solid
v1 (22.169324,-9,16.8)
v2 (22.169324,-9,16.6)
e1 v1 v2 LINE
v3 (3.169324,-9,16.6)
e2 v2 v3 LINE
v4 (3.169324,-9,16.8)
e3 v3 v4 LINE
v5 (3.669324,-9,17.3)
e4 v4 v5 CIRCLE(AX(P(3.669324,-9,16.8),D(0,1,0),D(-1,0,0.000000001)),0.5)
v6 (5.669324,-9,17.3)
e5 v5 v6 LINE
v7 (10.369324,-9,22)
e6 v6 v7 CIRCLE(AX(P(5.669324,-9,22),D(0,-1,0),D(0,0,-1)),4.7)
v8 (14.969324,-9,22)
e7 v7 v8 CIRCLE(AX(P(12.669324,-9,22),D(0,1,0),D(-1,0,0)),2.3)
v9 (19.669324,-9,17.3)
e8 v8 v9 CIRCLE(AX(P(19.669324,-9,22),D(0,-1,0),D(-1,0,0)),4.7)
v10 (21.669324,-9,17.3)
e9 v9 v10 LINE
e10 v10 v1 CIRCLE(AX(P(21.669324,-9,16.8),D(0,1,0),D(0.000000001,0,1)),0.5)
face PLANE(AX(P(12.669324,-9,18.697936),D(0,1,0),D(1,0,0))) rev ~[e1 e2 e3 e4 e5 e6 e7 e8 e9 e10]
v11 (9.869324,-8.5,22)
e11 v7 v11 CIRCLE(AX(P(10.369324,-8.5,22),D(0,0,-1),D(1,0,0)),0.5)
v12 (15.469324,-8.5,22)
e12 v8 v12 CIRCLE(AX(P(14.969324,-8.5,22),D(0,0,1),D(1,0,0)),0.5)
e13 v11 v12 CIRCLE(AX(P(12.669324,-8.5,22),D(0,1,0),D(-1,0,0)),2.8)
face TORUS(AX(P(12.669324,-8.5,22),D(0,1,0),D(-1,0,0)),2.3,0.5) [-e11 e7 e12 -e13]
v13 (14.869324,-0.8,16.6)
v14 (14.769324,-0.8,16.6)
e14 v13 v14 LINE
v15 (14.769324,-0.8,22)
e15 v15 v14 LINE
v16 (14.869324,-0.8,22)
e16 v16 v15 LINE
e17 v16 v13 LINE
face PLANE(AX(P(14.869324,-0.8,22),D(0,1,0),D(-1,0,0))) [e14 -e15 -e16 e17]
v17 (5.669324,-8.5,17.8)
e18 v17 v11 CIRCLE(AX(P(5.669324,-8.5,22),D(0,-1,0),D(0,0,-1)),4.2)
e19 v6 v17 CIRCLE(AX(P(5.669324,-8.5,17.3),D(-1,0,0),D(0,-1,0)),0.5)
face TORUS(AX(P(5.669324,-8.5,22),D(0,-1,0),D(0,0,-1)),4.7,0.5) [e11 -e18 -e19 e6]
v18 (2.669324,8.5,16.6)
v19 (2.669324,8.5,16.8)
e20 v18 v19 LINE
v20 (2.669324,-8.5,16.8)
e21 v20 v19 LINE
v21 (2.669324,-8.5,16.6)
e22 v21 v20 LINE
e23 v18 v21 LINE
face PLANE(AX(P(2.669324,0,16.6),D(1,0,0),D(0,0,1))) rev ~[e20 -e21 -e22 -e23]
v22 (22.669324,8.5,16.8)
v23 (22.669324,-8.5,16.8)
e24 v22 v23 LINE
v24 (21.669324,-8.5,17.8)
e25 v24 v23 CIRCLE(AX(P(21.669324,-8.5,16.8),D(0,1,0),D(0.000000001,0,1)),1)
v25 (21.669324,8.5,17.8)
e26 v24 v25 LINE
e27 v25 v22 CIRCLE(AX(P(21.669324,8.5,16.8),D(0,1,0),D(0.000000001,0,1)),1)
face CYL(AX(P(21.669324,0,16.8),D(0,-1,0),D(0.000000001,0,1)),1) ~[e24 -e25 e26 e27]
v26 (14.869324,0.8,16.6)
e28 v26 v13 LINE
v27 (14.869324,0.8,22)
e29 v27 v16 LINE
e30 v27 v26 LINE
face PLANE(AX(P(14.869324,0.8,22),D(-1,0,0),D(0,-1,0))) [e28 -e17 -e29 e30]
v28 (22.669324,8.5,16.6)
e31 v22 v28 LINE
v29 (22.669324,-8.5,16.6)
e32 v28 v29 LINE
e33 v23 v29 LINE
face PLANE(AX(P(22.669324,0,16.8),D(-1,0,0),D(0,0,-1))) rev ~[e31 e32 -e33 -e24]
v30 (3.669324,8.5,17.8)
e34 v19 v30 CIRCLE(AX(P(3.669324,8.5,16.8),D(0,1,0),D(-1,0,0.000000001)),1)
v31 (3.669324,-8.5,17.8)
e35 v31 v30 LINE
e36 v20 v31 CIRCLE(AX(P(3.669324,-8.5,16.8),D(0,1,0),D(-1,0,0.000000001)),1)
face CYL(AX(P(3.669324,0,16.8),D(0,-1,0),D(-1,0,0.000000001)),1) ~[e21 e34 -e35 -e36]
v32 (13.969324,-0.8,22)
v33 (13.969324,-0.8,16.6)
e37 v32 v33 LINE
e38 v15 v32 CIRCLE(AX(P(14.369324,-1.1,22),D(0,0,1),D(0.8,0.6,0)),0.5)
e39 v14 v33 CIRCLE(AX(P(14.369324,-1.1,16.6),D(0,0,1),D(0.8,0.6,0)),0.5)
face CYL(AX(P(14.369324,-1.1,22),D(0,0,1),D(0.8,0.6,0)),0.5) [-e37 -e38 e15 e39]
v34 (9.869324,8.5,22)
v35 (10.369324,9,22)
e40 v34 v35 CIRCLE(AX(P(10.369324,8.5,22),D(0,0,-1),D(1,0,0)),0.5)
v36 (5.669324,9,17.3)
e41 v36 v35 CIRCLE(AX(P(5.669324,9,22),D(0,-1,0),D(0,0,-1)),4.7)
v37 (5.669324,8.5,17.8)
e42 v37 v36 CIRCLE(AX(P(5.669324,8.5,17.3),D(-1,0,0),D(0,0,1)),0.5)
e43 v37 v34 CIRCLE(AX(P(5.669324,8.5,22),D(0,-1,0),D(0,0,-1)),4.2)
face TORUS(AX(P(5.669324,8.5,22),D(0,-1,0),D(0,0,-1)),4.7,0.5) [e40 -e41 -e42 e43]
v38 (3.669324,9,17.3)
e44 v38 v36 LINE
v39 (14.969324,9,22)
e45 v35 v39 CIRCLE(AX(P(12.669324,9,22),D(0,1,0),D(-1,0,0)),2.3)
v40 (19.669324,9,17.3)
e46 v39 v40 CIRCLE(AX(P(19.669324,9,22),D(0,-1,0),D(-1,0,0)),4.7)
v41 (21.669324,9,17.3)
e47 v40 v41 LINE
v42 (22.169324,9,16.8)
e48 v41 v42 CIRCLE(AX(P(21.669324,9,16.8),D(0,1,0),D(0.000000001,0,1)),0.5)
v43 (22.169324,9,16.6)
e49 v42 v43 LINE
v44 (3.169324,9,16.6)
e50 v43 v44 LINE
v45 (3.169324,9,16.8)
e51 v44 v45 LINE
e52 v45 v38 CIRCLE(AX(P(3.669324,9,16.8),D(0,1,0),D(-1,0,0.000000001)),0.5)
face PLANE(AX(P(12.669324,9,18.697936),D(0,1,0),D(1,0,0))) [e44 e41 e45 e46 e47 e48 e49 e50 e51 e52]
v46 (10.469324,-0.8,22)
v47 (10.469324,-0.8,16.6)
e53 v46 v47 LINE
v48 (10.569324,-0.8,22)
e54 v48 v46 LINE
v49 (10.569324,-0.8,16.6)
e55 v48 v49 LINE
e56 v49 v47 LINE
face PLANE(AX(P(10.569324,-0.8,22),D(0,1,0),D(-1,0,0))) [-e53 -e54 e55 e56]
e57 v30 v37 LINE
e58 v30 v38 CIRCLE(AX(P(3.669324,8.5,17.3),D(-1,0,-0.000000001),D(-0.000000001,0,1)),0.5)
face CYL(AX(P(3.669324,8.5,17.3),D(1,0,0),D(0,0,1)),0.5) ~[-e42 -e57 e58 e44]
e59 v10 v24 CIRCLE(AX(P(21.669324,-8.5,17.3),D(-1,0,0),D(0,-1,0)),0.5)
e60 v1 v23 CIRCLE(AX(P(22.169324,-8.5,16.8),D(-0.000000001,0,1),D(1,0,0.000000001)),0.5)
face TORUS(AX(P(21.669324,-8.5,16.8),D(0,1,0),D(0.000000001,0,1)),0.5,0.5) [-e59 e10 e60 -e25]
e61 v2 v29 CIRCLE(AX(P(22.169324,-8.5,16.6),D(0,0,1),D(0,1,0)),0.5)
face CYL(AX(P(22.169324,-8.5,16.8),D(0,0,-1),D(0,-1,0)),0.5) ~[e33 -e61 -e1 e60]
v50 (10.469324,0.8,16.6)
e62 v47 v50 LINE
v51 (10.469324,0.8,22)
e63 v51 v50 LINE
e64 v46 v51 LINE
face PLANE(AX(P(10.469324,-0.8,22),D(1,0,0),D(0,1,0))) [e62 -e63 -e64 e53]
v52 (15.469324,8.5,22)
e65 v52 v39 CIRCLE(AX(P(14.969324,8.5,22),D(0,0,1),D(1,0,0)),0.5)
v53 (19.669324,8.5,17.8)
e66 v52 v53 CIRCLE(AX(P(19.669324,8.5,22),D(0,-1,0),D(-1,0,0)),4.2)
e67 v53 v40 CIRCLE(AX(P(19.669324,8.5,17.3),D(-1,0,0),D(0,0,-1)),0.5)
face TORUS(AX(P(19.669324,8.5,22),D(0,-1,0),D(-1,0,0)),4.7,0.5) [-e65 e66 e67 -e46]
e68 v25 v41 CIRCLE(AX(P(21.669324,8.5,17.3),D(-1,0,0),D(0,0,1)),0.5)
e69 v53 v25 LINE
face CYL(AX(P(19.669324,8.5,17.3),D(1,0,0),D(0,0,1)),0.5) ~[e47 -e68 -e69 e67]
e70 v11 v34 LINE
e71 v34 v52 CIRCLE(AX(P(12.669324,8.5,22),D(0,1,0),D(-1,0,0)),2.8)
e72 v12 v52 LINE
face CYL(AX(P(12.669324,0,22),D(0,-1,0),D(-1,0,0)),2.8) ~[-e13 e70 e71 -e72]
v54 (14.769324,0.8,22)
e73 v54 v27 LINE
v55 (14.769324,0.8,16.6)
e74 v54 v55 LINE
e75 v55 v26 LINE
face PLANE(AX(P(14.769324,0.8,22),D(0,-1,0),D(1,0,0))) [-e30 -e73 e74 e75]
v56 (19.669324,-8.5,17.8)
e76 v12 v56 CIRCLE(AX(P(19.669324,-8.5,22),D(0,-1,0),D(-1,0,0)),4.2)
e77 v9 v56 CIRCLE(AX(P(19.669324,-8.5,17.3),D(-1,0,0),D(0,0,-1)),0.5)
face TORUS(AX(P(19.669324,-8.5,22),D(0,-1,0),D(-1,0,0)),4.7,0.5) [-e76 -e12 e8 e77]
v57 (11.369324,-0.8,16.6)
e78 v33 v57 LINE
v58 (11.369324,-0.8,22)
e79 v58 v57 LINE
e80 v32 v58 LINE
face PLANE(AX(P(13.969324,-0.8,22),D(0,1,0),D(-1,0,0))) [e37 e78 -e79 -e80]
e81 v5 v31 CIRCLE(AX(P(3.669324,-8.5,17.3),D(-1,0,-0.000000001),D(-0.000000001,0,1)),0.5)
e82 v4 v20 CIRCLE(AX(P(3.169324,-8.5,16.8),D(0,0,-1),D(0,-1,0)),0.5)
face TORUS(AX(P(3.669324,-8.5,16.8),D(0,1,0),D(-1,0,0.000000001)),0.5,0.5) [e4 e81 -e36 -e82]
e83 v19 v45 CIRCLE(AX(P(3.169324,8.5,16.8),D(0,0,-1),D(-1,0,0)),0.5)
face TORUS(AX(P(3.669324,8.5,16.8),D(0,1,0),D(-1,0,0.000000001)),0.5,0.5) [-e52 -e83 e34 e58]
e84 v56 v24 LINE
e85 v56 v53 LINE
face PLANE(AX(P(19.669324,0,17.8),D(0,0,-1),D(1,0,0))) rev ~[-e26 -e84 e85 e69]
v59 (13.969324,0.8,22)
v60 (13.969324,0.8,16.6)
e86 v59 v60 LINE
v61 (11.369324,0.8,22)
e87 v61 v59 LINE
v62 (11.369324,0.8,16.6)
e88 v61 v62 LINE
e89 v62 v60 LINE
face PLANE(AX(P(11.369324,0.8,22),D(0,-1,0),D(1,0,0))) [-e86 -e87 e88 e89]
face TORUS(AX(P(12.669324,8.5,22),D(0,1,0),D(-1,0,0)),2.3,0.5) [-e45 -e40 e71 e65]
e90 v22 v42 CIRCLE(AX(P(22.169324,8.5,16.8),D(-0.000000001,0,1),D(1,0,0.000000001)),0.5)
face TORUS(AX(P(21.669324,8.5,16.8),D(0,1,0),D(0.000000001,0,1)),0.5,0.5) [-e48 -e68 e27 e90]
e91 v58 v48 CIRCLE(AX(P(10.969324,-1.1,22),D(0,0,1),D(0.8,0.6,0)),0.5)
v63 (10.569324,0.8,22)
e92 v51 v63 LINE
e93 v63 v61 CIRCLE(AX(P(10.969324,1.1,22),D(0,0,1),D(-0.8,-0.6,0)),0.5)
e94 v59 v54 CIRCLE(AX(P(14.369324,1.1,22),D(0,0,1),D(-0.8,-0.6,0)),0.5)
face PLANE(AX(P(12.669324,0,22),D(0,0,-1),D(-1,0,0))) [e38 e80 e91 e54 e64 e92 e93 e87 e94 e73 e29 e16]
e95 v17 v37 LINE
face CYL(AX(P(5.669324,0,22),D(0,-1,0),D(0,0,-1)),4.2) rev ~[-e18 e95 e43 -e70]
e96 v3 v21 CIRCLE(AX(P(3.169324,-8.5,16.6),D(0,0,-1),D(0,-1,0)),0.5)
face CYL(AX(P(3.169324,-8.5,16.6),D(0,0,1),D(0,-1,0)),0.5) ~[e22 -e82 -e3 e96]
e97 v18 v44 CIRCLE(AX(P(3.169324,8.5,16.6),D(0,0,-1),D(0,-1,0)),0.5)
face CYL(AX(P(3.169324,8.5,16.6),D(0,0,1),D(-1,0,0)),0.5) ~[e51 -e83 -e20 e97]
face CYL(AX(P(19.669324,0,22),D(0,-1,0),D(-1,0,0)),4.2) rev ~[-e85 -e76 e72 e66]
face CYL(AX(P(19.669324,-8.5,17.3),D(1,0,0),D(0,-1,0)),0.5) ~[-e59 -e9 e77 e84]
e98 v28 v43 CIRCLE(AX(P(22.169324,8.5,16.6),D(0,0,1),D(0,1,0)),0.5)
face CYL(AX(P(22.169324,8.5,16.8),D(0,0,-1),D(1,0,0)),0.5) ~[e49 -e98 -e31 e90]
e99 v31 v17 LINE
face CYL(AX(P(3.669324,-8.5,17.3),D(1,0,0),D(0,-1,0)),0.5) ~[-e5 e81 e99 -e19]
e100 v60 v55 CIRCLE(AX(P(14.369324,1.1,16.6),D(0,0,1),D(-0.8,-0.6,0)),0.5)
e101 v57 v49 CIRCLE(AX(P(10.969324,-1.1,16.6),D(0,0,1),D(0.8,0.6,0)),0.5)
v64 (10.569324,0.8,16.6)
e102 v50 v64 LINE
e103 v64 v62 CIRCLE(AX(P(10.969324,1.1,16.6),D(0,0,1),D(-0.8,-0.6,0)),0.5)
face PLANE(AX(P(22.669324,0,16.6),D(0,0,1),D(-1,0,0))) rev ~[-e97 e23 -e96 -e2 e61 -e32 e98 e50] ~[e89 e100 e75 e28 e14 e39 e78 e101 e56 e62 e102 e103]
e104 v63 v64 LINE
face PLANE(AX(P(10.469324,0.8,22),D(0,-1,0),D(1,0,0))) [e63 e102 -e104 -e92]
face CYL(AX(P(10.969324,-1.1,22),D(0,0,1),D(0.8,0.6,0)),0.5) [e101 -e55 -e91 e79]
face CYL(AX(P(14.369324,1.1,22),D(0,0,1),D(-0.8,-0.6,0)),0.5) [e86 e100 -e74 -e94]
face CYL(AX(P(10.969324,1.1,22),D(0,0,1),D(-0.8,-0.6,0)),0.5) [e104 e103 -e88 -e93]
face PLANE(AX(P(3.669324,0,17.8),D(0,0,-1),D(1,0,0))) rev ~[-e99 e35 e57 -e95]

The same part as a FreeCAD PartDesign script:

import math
import FreeCAD as App
import Part
import Sketcher
from FreeCAD import Vector


def edges_at(feature, points):
    """Names of the edges that pass closest to the given points."""
    edges = feature.Shape.Edges
    near = lambda p: min(range(len(edges)), key=lambda i: edges[i].distToShape(Part.Vertex(*p))[0])
    return sorted({f"Edge{near(p) + 1}" for p in points})

doc = App.newDocument("Part")
params = doc.addObject("Spreadsheet::Sheet", "Params")
for row, (alias, value) in enumerate([
    ("sketch1_radius", "1 mm"),
    ("sketch1_radius2", "4.2 mm"),
    ("sketch1_radius3", "2.8 mm"),
    ("sketch1_width", "20 mm"),
    ("sketch1_height", "0.2 mm"),
    ("pad1_length", "18 mm"),
    ("fillet_radius", "0.5 mm"),
    ("sketch2_radius", "0.5 mm"),
    ("sketch2_width", "0.1 mm"),
    ("sketch2_width2", "2.6 mm"),
    ("sketch2_height", "1.6 mm"),
    ("pocket1_length", "5.4 mm"),
], start=1):
    params.set(f"A{row}", alias)
    params.set(f"B{row}", "=" + value)
    params.setAlias(f"B{row}", alias)

body = doc.addObject("PartDesign::Body", "Body")

sketch1 = body.newObject("Sketcher::SketchObject", "Sketch")
sketch1.AttachmentSupport = (doc.getObject("XZ_Plane"), [""])
sketch1.MapMode = "FlatFace"
sketch1.addGeometry(Part.LineSegment(Vector(2.67, 16.8, 0), Vector(2.67, 16.6, 0)), False)
sketch1.addGeometry(Part.LineSegment(Vector(2.67, 16.6, 0), Vector(22.67, 16.6, 0)), False)
sketch1.addGeometry(Part.LineSegment(Vector(22.67, 16.6, 0), Vector(22.67, 16.8, 0)), False)
sketch1.addGeometry(Part.ArcOfCircle(Part.Circle(Vector(21.67, 16.8, 0), Vector(0, 0, 1), 1), math.radians(0), math.radians(90)), False)
sketch1.addGeometry(Part.LineSegment(Vector(21.67, 17.8, 0), Vector(19.67, 17.8, 0)), False)
sketch1.addGeometry(Part.ArcOfCircle(Part.Circle(Vector(19.67, 22, 0), Vector(0, 0, 1), 4.2), math.radians(180), math.radians(270)), False)
sketch1.addGeometry(Part.ArcOfCircle(Part.Circle(Vector(12.67, 22, 0), Vector(0, 0, 1), 2.8), math.radians(0), math.radians(180)), False)
sketch1.addGeometry(Part.ArcOfCircle(Part.Circle(Vector(5.67, 22, 0), Vector(0, 0, 1), 4.2), math.radians(-90), math.radians(0)), False)
sketch1.addGeometry(Part.LineSegment(Vector(5.67, 17.8, 0), Vector(3.67, 17.8, 0)), False)
sketch1.addGeometry(Part.ArcOfCircle(Part.Circle(Vector(3.67, 16.8, 0), Vector(0, 0, 1), 1), math.radians(90), math.radians(180)), False)
sketch1.addConstraint(Sketcher.Constraint("Coincident", 0, 2, 1, 1))
sketch1.addConstraint(Sketcher.Constraint("Coincident", 1, 2, 2, 1))
sketch1.addConstraint(Sketcher.Constraint("Tangent", 2, 2, 3, 1))
sketch1.addConstraint(Sketcher.Constraint("Tangent", 3, 2, 4, 1))
sketch1.addConstraint(Sketcher.Constraint("Tangent", 4, 2, 5, 2))
sketch1.addConstraint(Sketcher.Constraint("Tangent", 5, 1, 6, 1))
sketch1.addConstraint(Sketcher.Constraint("Tangent", 6, 2, 7, 2))
sketch1.addConstraint(Sketcher.Constraint("Tangent", 7, 1, 8, 1))
sketch1.addConstraint(Sketcher.Constraint("Tangent", 8, 2, 9, 1))
sketch1.addConstraint(Sketcher.Constraint("Tangent", 9, 2, 0, 1))
sketch1.addConstraint(Sketcher.Constraint("Vertical", 0))
sketch1.addConstraint(Sketcher.Constraint("Horizontal", 1))
sketch1.addConstraint(Sketcher.Constraint("Vertical", 2))
sketch1.addConstraint(Sketcher.Constraint("Horizontal", 4))
sketch1.addConstraint(Sketcher.Constraint("Horizontal", 8))
sketch1.addConstraint(Sketcher.Constraint("Equal", 5, 7))
sketch1.addConstraint(Sketcher.Constraint("Equal", 3, 9))
sketch1.addConstraint(Sketcher.Constraint("Horizontal", 5, 3, 6, 3))
sketch1.addConstraint(Sketcher.Constraint("Horizontal", 6, 3, 7, 3))
sketch1.addConstraint(Sketcher.Constraint("Equal", 4, 8))
sketch1.addConstraint(Sketcher.Constraint("Radius", 3, 1.0))
sketch1.addConstraint(Sketcher.Constraint("Radius", 5, 4.2))
sketch1.addConstraint(Sketcher.Constraint("Radius", 6, 2.8))
sketch1.addConstraint(Sketcher.Constraint("DistanceX", 1, 1, 1, 2, 20.0))
sketch1.addConstraint(Sketcher.Constraint("DistanceY", 0, 2, 0, 1, 0.2))
sketch1.addConstraint(Sketcher.Constraint("DistanceY", -1, 1, 5, 3, 22.0))
sketch1.addConstraint(Sketcher.Constraint("DistanceX", -1, 1, 3, 3, 21.669324))
sketch1.setExpression("Constraints[20]", "Params.sketch1_radius")
sketch1.setExpression("Constraints[21]", "Params.sketch1_radius2")
sketch1.setExpression("Constraints[22]", "Params.sketch1_radius3")
sketch1.setExpression("Constraints[23]", "Params.sketch1_width")
sketch1.setExpression("Constraints[24]", "Params.sketch1_height")
pad1 = body.newObject("PartDesign::Pad", "Pad")
pad1.Profile = sketch1
pad1.setExpression("Length", "Params.pad1_length")
pad1.Midplane = True
doc.recompute()

fillet = body.newObject("PartDesign::Fillet", "Fillet")
fillet.Base = (pad1, edges_at(pad1, [
    (22.376, -9, 17.507),
    (2.669, 9, 16.7),
    (2.962, 9, 17.507),
    (4.669, 9, 17.8),
    (8.639, 9, 19.03),
    (12.669, 9, 24.8),
    (16.699, 9, 19.03),
    (20.669, 9, 17.8),
    (20.669, -9, 17.8),
    (22.376, 9, 17.507),
    (22.669, 9, 16.7),
    (16.699, -9, 19.03),
    (12.669, -9, 24.8),
    (8.639, -9, 19.03),
    (4.669, -9, 17.8),
    (2.962, -9, 17.507),
    (2.669, -9, 16.7),
    (22.669, -9, 16.7),
]))
fillet.setExpression("Radius", "Params.fillet_radius")

sketch2 = body.newObject("Sketcher::SketchObject", "Sketch001")
sketch2.AttachmentSupport = (doc.getObject("XY_Plane"), [""])
sketch2.MapMode = "FlatFace"
sketch2.AttachmentOffset = App.Placement(Vector(0, 0, 22), App.Rotation())
sketch2.addGeometry(Part.LineSegment(Vector(14.87, 0.8, 0), Vector(14.87, -0.8, 0)), False)
sketch2.addGeometry(Part.LineSegment(Vector(14.87, -0.8, 0), Vector(14.77, -0.8, 0)), False)
sketch2.addGeometry(Part.ArcOfCircle(Part.Circle(Vector(14.37, -1.1, 0), Vector(0, 0, 1), 0.5), math.radians(37), math.radians(143)), False)
sketch2.addGeometry(Part.LineSegment(Vector(13.97, -0.8, 0), Vector(11.37, -0.8, 0)), False)
sketch2.addGeometry(Part.ArcOfCircle(Part.Circle(Vector(10.97, -1.1, 0), Vector(0, 0, 1), 0.5), math.radians(37), math.radians(143)), False)
sketch2.addGeometry(Part.LineSegment(Vector(10.57, -0.8, 0), Vector(10.47, -0.8, 0)), False)
sketch2.addGeometry(Part.LineSegment(Vector(10.47, -0.8, 0), Vector(10.47, 0.8, 0)), False)
sketch2.addGeometry(Part.LineSegment(Vector(10.47, 0.8, 0), Vector(10.57, 0.8, 0)), False)
sketch2.addGeometry(Part.ArcOfCircle(Part.Circle(Vector(10.97, 1.1, 0), Vector(0, 0, 1), 0.5), math.radians(-143), math.radians(-37)), False)
sketch2.addGeometry(Part.LineSegment(Vector(11.37, 0.8, 0), Vector(13.97, 0.8, 0)), False)
sketch2.addGeometry(Part.ArcOfCircle(Part.Circle(Vector(14.37, 1.1, 0), Vector(0, 0, 1), 0.5), math.radians(-143), math.radians(-37)), False)
sketch2.addGeometry(Part.LineSegment(Vector(14.77, 0.8, 0), Vector(14.87, 0.8, 0)), False)
sketch2.addConstraint(Sketcher.Constraint("Coincident", 0, 2, 1, 1))
sketch2.addConstraint(Sketcher.Constraint("Coincident", 1, 2, 2, 1))
sketch2.addConstraint(Sketcher.Constraint("Coincident", 2, 2, 3, 1))
sketch2.addConstraint(Sketcher.Constraint("Coincident", 3, 2, 4, 1))
sketch2.addConstraint(Sketcher.Constraint("Coincident", 4, 2, 5, 1))
sketch2.addConstraint(Sketcher.Constraint("Coincident", 5, 2, 6, 1))
sketch2.addConstraint(Sketcher.Constraint("Coincident", 6, 2, 7, 1))
sketch2.addConstraint(Sketcher.Constraint("Coincident", 7, 2, 8, 1))
sketch2.addConstraint(Sketcher.Constraint("Coincident", 8, 2, 9, 1))
sketch2.addConstraint(Sketcher.Constraint("Coincident", 9, 2, 10, 1))
sketch2.addConstraint(Sketcher.Constraint("Coincident", 10, 2, 11, 1))
sketch2.addConstraint(Sketcher.Constraint("Coincident", 11, 2, 0, 1))
sketch2.addConstraint(Sketcher.Constraint("Vertical", 0))
sketch2.addConstraint(Sketcher.Constraint("Horizontal", 1))
sketch2.addConstraint(Sketcher.Constraint("Horizontal", 3))
sketch2.addConstraint(Sketcher.Constraint("Horizontal", 5))
sketch2.addConstraint(Sketcher.Constraint("Vertical", 6))
sketch2.addConstraint(Sketcher.Constraint("Horizontal", 7))
sketch2.addConstraint(Sketcher.Constraint("Horizontal", 9))
sketch2.addConstraint(Sketcher.Constraint("Horizontal", 11))
sketch2.addConstraint(Sketcher.Constraint("Equal", 2, 4))
sketch2.addConstraint(Sketcher.Constraint("Equal", 4, 8))
sketch2.addConstraint(Sketcher.Constraint("Equal", 8, 10))
sketch2.addConstraint(Sketcher.Constraint("Symmetric", 4, 3, 8, 3, -1))
sketch2.addConstraint(Sketcher.Constraint("Symmetric", 2, 3, 10, 3, -1))
sketch2.addConstraint(Sketcher.Constraint("Horizontal", 2, 3, 4, 3))
sketch2.addConstraint(Sketcher.Constraint("Horizontal", 1, 2, 2, 2))
sketch2.addConstraint(Sketcher.Constraint("Horizontal", 3, 2, 4, 2))
sketch2.addConstraint(Sketcher.Constraint("Horizontal", 7, 2, 8, 2))
sketch2.addConstraint(Sketcher.Constraint("Horizontal", 9, 2, 10, 2))
sketch2.addConstraint(Sketcher.Constraint("Vertical", 4, 2, 7, 2))
sketch2.addConstraint(Sketcher.Constraint("Equal", 1, 5))
sketch2.addConstraint(Sketcher.Constraint("Radius", 2, 0.5))
sketch2.addConstraint(Sketcher.Constraint("DistanceX", 1, 2, 1, 1, 0.1))
sketch2.addConstraint(Sketcher.Constraint("DistanceX", 3, 2, 3, 1, 2.6))
sketch2.addConstraint(Sketcher.Constraint("DistanceY", 0, 2, 0, 1, 1.6))
sketch2.addConstraint(Sketcher.Constraint("DistanceX", 4, 3, 2, 2, 3.0))
sketch2.addConstraint(Sketcher.Constraint("DistanceX", -1, 1, 2, 3, 14.369324))
sketch2.setExpression("Constraints[32]", "Params.sketch2_radius")
sketch2.setExpression("Constraints[33]", "Params.sketch2_width")
sketch2.setExpression("Constraints[34]", "Params.sketch2_width2")
sketch2.setExpression("Constraints[35]", "Params.sketch2_height")
pocket1 = body.newObject("PartDesign::Pocket", "Pocket")
pocket1.Profile = sketch2
pocket1.setExpression("Length", "Params.pocket1_length")

doc.recompute()
